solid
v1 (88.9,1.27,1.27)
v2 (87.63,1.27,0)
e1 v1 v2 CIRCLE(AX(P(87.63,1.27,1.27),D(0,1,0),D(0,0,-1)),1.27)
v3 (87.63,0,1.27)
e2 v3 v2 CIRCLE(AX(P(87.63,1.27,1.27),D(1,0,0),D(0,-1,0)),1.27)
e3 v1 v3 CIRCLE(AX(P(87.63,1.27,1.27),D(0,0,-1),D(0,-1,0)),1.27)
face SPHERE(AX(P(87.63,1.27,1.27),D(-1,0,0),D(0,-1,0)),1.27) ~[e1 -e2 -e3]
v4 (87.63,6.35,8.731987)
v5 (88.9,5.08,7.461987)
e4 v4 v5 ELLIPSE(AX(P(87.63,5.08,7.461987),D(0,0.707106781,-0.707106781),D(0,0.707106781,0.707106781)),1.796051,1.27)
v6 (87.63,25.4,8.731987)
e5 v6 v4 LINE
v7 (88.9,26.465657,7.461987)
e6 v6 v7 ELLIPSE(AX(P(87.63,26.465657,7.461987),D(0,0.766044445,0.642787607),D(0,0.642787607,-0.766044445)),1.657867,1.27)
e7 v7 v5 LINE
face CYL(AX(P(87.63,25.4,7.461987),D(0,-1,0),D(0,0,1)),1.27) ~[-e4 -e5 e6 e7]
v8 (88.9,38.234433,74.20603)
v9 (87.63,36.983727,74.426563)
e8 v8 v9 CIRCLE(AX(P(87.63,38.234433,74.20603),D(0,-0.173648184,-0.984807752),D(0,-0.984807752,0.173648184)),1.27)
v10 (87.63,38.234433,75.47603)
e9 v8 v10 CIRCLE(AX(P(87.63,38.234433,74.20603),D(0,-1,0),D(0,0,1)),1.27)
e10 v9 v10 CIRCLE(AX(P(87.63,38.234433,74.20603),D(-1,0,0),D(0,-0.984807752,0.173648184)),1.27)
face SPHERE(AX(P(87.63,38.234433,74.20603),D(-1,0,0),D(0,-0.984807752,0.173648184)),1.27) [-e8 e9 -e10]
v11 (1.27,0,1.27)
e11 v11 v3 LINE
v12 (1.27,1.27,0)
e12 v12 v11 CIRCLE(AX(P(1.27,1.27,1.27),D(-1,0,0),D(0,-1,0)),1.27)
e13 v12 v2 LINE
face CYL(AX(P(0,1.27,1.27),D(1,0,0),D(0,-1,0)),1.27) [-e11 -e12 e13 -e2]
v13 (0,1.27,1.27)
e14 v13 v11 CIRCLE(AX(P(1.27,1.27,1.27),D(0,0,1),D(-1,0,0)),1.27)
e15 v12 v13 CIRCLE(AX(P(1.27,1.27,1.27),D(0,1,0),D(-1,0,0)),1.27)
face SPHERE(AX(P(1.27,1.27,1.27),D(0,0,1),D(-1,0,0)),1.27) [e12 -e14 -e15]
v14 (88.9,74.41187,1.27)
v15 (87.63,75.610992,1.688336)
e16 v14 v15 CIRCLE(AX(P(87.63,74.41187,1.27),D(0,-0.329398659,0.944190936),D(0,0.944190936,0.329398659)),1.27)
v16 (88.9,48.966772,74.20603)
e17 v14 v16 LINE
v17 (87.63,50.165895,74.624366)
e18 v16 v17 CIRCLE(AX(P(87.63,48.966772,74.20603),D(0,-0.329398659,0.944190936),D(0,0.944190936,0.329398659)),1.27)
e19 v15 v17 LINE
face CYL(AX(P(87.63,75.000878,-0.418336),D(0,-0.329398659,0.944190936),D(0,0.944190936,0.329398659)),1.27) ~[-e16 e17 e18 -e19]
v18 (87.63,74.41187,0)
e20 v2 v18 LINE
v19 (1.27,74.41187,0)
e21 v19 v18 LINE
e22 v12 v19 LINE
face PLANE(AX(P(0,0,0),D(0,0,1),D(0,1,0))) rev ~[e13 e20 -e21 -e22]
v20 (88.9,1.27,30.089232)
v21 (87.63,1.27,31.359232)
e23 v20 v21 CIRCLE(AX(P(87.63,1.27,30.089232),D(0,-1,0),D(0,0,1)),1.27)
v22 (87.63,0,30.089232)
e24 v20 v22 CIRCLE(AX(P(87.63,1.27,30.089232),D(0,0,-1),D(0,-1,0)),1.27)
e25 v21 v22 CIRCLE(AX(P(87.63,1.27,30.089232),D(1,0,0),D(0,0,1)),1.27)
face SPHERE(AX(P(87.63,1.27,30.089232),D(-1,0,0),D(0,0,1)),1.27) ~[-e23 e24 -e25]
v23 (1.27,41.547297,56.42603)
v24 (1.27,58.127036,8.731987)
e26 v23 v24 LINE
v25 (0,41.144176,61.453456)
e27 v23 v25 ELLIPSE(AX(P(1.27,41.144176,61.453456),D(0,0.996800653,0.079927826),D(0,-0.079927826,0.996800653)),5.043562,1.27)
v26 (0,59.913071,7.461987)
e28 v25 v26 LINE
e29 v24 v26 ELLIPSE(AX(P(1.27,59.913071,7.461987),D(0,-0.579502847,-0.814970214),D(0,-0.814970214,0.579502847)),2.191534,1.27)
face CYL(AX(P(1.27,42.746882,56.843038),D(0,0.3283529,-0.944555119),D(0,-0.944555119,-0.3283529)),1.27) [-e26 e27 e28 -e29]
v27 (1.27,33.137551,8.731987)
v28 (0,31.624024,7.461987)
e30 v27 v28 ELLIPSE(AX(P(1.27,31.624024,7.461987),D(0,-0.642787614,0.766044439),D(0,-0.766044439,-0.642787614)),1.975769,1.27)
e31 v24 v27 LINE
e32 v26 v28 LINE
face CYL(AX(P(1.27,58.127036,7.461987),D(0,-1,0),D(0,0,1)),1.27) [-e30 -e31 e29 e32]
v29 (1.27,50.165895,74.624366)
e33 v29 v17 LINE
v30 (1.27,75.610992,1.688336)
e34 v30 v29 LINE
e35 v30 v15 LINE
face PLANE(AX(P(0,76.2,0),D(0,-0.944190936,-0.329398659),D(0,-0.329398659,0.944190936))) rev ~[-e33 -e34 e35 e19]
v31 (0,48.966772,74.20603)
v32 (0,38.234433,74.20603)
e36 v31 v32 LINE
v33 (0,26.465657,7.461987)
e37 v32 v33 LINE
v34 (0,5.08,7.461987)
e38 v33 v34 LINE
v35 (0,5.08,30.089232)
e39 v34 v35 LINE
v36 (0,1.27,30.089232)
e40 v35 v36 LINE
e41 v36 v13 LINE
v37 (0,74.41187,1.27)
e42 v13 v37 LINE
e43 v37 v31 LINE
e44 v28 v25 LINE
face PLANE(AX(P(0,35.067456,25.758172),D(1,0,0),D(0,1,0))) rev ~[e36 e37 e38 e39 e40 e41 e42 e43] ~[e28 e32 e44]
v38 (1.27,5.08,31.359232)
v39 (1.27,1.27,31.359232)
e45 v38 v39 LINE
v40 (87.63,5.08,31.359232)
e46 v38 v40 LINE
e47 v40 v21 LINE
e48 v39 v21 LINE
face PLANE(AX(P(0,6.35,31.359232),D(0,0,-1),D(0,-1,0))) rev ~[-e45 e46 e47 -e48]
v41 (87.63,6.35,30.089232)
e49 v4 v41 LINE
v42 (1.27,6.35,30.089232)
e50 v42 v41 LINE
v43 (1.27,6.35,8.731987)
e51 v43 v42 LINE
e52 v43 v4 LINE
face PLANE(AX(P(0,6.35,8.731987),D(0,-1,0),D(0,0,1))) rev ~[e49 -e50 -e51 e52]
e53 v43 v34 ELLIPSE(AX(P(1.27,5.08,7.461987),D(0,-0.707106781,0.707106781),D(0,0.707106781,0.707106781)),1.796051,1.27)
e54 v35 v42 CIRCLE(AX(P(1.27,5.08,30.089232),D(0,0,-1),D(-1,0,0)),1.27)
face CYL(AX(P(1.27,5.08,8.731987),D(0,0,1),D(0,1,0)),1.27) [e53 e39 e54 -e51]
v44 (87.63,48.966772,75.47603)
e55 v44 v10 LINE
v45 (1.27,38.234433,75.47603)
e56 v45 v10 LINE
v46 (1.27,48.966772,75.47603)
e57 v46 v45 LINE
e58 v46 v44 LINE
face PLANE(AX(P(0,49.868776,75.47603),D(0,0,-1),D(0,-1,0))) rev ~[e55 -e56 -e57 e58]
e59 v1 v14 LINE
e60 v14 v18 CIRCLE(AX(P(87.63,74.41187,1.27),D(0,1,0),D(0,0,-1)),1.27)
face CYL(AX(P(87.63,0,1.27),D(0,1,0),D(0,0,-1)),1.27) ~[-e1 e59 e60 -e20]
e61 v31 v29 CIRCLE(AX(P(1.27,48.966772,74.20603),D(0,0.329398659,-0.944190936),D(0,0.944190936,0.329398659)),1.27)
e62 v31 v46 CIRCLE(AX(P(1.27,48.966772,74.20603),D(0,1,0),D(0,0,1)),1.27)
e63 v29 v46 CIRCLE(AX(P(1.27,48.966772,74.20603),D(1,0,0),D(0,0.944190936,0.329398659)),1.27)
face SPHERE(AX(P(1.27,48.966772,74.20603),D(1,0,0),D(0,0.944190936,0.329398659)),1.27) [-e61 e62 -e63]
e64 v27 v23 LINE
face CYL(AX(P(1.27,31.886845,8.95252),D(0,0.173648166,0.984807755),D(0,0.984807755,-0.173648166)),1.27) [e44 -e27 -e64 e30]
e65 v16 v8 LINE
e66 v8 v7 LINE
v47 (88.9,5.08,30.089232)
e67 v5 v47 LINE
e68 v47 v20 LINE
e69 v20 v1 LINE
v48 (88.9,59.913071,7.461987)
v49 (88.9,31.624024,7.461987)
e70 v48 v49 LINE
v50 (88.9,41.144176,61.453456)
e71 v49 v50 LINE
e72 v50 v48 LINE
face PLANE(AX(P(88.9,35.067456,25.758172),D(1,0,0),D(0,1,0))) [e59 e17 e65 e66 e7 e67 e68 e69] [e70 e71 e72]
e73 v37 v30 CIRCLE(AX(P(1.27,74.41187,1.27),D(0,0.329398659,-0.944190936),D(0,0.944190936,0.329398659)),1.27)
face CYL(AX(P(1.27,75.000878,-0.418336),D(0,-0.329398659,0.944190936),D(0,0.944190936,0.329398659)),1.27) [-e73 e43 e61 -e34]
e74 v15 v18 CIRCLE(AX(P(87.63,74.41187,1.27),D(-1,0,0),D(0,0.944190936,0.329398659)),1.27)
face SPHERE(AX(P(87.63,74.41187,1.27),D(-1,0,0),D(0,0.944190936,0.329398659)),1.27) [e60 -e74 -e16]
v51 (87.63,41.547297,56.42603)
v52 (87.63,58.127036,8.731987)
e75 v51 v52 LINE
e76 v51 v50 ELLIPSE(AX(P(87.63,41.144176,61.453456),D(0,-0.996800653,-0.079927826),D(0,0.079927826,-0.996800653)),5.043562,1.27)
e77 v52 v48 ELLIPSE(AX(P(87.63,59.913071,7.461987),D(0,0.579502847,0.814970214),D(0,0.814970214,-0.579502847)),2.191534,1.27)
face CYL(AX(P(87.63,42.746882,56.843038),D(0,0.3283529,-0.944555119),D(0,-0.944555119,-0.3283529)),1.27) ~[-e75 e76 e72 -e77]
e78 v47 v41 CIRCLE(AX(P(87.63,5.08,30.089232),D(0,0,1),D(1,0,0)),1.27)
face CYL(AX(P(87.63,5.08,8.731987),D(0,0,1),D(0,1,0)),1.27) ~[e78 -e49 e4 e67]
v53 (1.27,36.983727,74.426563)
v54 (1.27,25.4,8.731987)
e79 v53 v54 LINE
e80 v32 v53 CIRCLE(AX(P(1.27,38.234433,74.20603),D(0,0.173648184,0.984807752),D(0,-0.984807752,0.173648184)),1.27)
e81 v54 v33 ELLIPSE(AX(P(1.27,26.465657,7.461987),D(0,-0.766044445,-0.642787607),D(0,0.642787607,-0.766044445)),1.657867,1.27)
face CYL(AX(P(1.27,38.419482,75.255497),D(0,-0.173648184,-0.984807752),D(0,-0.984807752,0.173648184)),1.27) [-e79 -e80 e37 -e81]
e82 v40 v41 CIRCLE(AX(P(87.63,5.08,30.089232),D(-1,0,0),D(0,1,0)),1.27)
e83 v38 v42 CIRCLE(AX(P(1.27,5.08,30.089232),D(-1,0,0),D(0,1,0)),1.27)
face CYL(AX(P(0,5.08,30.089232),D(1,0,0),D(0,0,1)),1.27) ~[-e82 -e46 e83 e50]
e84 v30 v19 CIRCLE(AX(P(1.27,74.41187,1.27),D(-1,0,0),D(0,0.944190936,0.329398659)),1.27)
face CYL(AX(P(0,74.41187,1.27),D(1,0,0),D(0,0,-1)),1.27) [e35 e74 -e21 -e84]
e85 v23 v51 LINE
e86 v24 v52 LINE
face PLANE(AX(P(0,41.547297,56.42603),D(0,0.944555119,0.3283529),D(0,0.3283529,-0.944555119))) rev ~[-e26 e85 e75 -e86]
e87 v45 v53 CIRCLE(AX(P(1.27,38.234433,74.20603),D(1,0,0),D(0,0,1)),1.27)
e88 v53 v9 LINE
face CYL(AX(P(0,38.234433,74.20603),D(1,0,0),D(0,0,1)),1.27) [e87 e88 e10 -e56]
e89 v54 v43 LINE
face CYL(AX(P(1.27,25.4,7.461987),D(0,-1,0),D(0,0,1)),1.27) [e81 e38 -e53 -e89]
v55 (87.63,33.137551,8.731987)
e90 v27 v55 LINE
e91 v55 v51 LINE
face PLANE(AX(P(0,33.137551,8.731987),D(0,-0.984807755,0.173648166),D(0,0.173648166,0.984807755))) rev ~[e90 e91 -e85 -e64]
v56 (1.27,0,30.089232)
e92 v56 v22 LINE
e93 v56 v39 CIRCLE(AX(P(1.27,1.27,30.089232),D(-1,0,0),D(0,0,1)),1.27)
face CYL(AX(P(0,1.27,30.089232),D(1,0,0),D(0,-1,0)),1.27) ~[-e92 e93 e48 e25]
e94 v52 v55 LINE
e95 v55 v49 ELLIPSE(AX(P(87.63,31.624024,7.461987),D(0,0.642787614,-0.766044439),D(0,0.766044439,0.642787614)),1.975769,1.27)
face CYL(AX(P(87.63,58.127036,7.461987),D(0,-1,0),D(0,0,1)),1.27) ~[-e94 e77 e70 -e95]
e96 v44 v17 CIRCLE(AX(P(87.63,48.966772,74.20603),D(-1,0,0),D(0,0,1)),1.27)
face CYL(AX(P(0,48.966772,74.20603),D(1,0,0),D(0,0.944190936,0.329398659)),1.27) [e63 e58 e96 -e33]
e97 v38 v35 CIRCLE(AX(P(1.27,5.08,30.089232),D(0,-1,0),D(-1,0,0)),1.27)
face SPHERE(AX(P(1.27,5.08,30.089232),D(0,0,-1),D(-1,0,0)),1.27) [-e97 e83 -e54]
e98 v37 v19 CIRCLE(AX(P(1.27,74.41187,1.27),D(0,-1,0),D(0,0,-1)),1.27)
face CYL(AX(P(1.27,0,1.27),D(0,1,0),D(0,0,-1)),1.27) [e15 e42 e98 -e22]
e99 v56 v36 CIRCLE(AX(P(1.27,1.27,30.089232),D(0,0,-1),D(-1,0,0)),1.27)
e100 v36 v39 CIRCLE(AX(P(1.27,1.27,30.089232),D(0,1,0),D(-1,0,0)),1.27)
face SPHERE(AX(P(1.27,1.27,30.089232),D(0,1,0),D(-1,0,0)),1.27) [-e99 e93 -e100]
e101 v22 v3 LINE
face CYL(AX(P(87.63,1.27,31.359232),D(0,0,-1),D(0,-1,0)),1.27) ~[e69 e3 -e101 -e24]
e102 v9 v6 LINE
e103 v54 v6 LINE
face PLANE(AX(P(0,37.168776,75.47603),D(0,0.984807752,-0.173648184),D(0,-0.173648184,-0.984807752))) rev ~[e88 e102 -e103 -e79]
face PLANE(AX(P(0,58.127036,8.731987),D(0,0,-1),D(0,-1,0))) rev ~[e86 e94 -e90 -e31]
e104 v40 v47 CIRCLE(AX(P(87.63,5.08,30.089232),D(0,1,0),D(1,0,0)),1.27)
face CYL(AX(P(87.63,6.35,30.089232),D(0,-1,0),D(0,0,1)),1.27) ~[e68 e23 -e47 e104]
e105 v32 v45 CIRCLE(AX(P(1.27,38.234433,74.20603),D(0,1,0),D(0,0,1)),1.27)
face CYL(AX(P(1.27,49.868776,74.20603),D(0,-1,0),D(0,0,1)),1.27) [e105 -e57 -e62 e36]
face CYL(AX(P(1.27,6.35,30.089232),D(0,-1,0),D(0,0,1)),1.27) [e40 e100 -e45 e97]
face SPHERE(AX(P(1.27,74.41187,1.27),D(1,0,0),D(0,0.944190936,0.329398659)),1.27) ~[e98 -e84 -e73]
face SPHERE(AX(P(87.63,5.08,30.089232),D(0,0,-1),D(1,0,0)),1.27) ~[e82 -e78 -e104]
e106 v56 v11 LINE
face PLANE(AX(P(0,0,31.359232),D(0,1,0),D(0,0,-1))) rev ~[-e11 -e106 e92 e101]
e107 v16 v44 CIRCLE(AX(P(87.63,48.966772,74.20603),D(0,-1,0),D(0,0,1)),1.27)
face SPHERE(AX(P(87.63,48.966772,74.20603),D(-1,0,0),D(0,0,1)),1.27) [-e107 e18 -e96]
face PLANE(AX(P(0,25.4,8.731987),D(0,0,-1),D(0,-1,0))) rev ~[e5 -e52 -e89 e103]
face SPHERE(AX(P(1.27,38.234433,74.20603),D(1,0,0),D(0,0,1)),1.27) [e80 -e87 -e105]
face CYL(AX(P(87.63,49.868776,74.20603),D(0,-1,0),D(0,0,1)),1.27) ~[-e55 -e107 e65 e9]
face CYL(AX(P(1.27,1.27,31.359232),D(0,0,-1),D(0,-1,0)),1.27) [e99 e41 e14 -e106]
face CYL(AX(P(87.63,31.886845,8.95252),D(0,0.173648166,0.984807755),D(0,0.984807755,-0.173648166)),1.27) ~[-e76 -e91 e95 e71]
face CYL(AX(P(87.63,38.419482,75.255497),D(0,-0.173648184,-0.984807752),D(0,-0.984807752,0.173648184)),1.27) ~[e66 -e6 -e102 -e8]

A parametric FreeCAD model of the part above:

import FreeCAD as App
import Part
import Sketcher
from FreeCAD import Vector
Q = App.Units.Quantity


def edges_at(feature, points):
    """Names of the edges that pass closest to the given points."""
    edges = feature.Shape.Edges
    near = lambda p: min(range(len(edges)), key=lambda i: edges[i].distToShape(Part.Vertex(*p))[0])
    return sorted({f"Edge{near(p) + 1}" for p in points})

doc = App.newDocument("Part")
body = doc.addObject("PartDesign::Body", "Body")

sketch1 = body.newObject("Sketcher::SketchObject", "Sketch")
sketch1.AttachmentSupport = (doc.getObject("YZ_Plane"), [""])
sketch1.MapMode = "FlatFace"
sketch1.addGeometry(Part.LineSegment(Vector(0, 31, 0), Vector(0, 0, 0)), False)
sketch1.addGeometry(Part.LineSegment(Vector(0, 0, 0), Vector(76, 0, 0)), False)
sketch1.addGeometry(Part.LineSegment(Vector(76, 0, 0), Vector(50, 75, 0)), False)
sketch1.addGeometry(Part.LineSegment(Vector(50, 75, 0), Vector(37, 75, 0)), False)
sketch1.addGeometry(Part.LineSegment(Vector(37, 75, 0), Vector(25, 9, 0)), False)
sketch1.addGeometry(Part.LineSegment(Vector(25, 9, 0), Vector(6, 9, 0)), False)
sketch1.addGeometry(Part.LineSegment(Vector(6, 9, 0), Vector(6, 31, 0)), False)
sketch1.addGeometry(Part.LineSegment(Vector(6, 31, 0), Vector(0, 31, 0)), False)
sketch1.addGeometry(Part.LineSegment(Vector(58, 9, 0), Vector(33, 9, 0)), False)
sketch1.addGeometry(Part.LineSegment(Vector(33, 9, 0), Vector(42, 56, 0)), False)
sketch1.addGeometry(Part.LineSegment(Vector(42, 56, 0), Vector(58, 9, 0)), False)
sketch1.addConstraint(Sketcher.Constraint("Coincident", 0, 2, 1, 1))
sketch1.addConstraint(Sketcher.Constraint("Coincident", 1, 2, 2, 1))
sketch1.addConstraint(Sketcher.Constraint("Coincident", 2, 2, 3, 1))
sketch1.addConstraint(Sketcher.Constraint("Coincident", 3, 2, 4, 1))
sketch1.addConstraint(Sketcher.Constraint("Coincident", 4, 2, 5, 1))
sketch1.addConstraint(Sketcher.Constraint("Coincident", 5, 2, 6, 1))
sketch1.addConstraint(Sketcher.Constraint("Coincident", 6, 2, 7, 1))
sketch1.addConstraint(Sketcher.Constraint("Coincident", 7, 2, 0, 1))
sketch1.addConstraint(Sketcher.Constraint("Coincident", 8, 2, 9, 1))
sketch1.addConstraint(Sketcher.Constraint("Coincident", 9, 2, 10, 1))
sketch1.addConstraint(Sketcher.Constraint("Coincident", 10, 2, 8, 1))
sketch1.addConstraint(Sketcher.Constraint("Vertical", 0))
sketch1.addConstraint(Sketcher.Constraint("Horizontal", 1))
sketch1.addConstraint(Sketcher.Constraint("Horizontal", 3))
sketch1.addConstraint(Sketcher.Constraint("Horizontal", 5))
sketch1.addConstraint(Sketcher.Constraint("Vertical", 6))
sketch1.addConstraint(Sketcher.Constraint("Horizontal", 7))
sketch1.addConstraint(Sketcher.Constraint("Horizontal", 8))
sketch1.addConstraint(Sketcher.Constraint("Coincident", 0, 2, -1, 1))
sketch1.addConstraint(Sketcher.Constraint("Parallel", 4, 9))
sketch1.addConstraint(Sketcher.Constraint("Horizontal", 5, 2, 8, 2))
sketch1.addConstraint(Sketcher.Constraint("DistanceX", 1, 1, 1, 2, Q("3 in")))
sketch1.addConstraint(Sketcher.Constraint("DistanceX", 3, 2, 3, 1, Q("0.5 in")))
sketch1.addConstraint(Sketcher.Constraint("DistanceX", -1, 1, 4, 2, Q("1 in")))
sketch1.addConstraint(Sketcher.Constraint("Angle", 4, Q("-100 deg")))
sketch1.addConstraint(Sketcher.Constraint("DistanceX", 5, 2, 5, 1, Q("0.75 in")))
sketch1.addConstraint(Sketcher.Constraint("DistanceY", 9, 2, 3, 2, Q("0.75 in")))
sketch1.addConstraint(Sketcher.Constraint("Distance", 9, Q("48.4298 mm")))
sketch1.addConstraint(Sketcher.Constraint("DistanceY", 0, 2, 0, 1, Q("31.359232 mm")))
sketch1.addConstraint(Sketcher.Constraint("DistanceX", 8, 2, 8, 1, Q("24.989485 mm")))
sketch1.addConstraint(Sketcher.Constraint("DistanceY", 6, 1, 6, 2, Q("22.627245 mm")))
sketch1.addConstraint(Sketcher.Constraint("DistanceX", -1, 1, 8, 2, Q("33.137551 mm")))
pad1 = body.newObject("PartDesign::Pad", "Pad")
pad1.Profile = sketch1
pad1.Length = Q("3.5 in")
doc.recompute()

fillet = body.newObject("PartDesign::Fillet", "Fillet")
fillet.Base = (pad1, edges_at(pad1, [
    (88.9, 31.284, 42.104),
    (88.9, 63.034, 37.738),
    (88.9, 49.837, 32.579),
    (88.9, 37.342, 32.579),
    (44.45, 49.869, 75.476),
    (0, 63.034, 37.738),
    (0, 6.35, 20.046),
    (0, 3.175, 31.359),
    (0, 0, 15.68),
    (0, 38.1, 0),
    (0, 43.519, 75.476),
    (0, 31.284, 42.104),
    (0, 15.875, 8.732),
    (0, 45.632, 8.732),
    (0, 37.342, 32.579),
    (0, 49.837, 32.579),
    (44.45, 0, 0),
    (44.45, 0, 31.359),
    (88.9, 6.35, 20.046),
    (88.9, 3.175, 31.359),
    (88.9, 0, 15.68),
    (88.9, 38.1, 0),
    (88.9, 43.519, 75.476),
    (88.9, 15.875, 8.732),
    (88.9, 45.632, 8.732),
    (44.45, 6.35, 31.359),
    (44.45, 37.169, 75.476),
    (44.45, 76.2, 0),
]))
fillet.Radius = Q("0.05 in")

doc.recompute()
